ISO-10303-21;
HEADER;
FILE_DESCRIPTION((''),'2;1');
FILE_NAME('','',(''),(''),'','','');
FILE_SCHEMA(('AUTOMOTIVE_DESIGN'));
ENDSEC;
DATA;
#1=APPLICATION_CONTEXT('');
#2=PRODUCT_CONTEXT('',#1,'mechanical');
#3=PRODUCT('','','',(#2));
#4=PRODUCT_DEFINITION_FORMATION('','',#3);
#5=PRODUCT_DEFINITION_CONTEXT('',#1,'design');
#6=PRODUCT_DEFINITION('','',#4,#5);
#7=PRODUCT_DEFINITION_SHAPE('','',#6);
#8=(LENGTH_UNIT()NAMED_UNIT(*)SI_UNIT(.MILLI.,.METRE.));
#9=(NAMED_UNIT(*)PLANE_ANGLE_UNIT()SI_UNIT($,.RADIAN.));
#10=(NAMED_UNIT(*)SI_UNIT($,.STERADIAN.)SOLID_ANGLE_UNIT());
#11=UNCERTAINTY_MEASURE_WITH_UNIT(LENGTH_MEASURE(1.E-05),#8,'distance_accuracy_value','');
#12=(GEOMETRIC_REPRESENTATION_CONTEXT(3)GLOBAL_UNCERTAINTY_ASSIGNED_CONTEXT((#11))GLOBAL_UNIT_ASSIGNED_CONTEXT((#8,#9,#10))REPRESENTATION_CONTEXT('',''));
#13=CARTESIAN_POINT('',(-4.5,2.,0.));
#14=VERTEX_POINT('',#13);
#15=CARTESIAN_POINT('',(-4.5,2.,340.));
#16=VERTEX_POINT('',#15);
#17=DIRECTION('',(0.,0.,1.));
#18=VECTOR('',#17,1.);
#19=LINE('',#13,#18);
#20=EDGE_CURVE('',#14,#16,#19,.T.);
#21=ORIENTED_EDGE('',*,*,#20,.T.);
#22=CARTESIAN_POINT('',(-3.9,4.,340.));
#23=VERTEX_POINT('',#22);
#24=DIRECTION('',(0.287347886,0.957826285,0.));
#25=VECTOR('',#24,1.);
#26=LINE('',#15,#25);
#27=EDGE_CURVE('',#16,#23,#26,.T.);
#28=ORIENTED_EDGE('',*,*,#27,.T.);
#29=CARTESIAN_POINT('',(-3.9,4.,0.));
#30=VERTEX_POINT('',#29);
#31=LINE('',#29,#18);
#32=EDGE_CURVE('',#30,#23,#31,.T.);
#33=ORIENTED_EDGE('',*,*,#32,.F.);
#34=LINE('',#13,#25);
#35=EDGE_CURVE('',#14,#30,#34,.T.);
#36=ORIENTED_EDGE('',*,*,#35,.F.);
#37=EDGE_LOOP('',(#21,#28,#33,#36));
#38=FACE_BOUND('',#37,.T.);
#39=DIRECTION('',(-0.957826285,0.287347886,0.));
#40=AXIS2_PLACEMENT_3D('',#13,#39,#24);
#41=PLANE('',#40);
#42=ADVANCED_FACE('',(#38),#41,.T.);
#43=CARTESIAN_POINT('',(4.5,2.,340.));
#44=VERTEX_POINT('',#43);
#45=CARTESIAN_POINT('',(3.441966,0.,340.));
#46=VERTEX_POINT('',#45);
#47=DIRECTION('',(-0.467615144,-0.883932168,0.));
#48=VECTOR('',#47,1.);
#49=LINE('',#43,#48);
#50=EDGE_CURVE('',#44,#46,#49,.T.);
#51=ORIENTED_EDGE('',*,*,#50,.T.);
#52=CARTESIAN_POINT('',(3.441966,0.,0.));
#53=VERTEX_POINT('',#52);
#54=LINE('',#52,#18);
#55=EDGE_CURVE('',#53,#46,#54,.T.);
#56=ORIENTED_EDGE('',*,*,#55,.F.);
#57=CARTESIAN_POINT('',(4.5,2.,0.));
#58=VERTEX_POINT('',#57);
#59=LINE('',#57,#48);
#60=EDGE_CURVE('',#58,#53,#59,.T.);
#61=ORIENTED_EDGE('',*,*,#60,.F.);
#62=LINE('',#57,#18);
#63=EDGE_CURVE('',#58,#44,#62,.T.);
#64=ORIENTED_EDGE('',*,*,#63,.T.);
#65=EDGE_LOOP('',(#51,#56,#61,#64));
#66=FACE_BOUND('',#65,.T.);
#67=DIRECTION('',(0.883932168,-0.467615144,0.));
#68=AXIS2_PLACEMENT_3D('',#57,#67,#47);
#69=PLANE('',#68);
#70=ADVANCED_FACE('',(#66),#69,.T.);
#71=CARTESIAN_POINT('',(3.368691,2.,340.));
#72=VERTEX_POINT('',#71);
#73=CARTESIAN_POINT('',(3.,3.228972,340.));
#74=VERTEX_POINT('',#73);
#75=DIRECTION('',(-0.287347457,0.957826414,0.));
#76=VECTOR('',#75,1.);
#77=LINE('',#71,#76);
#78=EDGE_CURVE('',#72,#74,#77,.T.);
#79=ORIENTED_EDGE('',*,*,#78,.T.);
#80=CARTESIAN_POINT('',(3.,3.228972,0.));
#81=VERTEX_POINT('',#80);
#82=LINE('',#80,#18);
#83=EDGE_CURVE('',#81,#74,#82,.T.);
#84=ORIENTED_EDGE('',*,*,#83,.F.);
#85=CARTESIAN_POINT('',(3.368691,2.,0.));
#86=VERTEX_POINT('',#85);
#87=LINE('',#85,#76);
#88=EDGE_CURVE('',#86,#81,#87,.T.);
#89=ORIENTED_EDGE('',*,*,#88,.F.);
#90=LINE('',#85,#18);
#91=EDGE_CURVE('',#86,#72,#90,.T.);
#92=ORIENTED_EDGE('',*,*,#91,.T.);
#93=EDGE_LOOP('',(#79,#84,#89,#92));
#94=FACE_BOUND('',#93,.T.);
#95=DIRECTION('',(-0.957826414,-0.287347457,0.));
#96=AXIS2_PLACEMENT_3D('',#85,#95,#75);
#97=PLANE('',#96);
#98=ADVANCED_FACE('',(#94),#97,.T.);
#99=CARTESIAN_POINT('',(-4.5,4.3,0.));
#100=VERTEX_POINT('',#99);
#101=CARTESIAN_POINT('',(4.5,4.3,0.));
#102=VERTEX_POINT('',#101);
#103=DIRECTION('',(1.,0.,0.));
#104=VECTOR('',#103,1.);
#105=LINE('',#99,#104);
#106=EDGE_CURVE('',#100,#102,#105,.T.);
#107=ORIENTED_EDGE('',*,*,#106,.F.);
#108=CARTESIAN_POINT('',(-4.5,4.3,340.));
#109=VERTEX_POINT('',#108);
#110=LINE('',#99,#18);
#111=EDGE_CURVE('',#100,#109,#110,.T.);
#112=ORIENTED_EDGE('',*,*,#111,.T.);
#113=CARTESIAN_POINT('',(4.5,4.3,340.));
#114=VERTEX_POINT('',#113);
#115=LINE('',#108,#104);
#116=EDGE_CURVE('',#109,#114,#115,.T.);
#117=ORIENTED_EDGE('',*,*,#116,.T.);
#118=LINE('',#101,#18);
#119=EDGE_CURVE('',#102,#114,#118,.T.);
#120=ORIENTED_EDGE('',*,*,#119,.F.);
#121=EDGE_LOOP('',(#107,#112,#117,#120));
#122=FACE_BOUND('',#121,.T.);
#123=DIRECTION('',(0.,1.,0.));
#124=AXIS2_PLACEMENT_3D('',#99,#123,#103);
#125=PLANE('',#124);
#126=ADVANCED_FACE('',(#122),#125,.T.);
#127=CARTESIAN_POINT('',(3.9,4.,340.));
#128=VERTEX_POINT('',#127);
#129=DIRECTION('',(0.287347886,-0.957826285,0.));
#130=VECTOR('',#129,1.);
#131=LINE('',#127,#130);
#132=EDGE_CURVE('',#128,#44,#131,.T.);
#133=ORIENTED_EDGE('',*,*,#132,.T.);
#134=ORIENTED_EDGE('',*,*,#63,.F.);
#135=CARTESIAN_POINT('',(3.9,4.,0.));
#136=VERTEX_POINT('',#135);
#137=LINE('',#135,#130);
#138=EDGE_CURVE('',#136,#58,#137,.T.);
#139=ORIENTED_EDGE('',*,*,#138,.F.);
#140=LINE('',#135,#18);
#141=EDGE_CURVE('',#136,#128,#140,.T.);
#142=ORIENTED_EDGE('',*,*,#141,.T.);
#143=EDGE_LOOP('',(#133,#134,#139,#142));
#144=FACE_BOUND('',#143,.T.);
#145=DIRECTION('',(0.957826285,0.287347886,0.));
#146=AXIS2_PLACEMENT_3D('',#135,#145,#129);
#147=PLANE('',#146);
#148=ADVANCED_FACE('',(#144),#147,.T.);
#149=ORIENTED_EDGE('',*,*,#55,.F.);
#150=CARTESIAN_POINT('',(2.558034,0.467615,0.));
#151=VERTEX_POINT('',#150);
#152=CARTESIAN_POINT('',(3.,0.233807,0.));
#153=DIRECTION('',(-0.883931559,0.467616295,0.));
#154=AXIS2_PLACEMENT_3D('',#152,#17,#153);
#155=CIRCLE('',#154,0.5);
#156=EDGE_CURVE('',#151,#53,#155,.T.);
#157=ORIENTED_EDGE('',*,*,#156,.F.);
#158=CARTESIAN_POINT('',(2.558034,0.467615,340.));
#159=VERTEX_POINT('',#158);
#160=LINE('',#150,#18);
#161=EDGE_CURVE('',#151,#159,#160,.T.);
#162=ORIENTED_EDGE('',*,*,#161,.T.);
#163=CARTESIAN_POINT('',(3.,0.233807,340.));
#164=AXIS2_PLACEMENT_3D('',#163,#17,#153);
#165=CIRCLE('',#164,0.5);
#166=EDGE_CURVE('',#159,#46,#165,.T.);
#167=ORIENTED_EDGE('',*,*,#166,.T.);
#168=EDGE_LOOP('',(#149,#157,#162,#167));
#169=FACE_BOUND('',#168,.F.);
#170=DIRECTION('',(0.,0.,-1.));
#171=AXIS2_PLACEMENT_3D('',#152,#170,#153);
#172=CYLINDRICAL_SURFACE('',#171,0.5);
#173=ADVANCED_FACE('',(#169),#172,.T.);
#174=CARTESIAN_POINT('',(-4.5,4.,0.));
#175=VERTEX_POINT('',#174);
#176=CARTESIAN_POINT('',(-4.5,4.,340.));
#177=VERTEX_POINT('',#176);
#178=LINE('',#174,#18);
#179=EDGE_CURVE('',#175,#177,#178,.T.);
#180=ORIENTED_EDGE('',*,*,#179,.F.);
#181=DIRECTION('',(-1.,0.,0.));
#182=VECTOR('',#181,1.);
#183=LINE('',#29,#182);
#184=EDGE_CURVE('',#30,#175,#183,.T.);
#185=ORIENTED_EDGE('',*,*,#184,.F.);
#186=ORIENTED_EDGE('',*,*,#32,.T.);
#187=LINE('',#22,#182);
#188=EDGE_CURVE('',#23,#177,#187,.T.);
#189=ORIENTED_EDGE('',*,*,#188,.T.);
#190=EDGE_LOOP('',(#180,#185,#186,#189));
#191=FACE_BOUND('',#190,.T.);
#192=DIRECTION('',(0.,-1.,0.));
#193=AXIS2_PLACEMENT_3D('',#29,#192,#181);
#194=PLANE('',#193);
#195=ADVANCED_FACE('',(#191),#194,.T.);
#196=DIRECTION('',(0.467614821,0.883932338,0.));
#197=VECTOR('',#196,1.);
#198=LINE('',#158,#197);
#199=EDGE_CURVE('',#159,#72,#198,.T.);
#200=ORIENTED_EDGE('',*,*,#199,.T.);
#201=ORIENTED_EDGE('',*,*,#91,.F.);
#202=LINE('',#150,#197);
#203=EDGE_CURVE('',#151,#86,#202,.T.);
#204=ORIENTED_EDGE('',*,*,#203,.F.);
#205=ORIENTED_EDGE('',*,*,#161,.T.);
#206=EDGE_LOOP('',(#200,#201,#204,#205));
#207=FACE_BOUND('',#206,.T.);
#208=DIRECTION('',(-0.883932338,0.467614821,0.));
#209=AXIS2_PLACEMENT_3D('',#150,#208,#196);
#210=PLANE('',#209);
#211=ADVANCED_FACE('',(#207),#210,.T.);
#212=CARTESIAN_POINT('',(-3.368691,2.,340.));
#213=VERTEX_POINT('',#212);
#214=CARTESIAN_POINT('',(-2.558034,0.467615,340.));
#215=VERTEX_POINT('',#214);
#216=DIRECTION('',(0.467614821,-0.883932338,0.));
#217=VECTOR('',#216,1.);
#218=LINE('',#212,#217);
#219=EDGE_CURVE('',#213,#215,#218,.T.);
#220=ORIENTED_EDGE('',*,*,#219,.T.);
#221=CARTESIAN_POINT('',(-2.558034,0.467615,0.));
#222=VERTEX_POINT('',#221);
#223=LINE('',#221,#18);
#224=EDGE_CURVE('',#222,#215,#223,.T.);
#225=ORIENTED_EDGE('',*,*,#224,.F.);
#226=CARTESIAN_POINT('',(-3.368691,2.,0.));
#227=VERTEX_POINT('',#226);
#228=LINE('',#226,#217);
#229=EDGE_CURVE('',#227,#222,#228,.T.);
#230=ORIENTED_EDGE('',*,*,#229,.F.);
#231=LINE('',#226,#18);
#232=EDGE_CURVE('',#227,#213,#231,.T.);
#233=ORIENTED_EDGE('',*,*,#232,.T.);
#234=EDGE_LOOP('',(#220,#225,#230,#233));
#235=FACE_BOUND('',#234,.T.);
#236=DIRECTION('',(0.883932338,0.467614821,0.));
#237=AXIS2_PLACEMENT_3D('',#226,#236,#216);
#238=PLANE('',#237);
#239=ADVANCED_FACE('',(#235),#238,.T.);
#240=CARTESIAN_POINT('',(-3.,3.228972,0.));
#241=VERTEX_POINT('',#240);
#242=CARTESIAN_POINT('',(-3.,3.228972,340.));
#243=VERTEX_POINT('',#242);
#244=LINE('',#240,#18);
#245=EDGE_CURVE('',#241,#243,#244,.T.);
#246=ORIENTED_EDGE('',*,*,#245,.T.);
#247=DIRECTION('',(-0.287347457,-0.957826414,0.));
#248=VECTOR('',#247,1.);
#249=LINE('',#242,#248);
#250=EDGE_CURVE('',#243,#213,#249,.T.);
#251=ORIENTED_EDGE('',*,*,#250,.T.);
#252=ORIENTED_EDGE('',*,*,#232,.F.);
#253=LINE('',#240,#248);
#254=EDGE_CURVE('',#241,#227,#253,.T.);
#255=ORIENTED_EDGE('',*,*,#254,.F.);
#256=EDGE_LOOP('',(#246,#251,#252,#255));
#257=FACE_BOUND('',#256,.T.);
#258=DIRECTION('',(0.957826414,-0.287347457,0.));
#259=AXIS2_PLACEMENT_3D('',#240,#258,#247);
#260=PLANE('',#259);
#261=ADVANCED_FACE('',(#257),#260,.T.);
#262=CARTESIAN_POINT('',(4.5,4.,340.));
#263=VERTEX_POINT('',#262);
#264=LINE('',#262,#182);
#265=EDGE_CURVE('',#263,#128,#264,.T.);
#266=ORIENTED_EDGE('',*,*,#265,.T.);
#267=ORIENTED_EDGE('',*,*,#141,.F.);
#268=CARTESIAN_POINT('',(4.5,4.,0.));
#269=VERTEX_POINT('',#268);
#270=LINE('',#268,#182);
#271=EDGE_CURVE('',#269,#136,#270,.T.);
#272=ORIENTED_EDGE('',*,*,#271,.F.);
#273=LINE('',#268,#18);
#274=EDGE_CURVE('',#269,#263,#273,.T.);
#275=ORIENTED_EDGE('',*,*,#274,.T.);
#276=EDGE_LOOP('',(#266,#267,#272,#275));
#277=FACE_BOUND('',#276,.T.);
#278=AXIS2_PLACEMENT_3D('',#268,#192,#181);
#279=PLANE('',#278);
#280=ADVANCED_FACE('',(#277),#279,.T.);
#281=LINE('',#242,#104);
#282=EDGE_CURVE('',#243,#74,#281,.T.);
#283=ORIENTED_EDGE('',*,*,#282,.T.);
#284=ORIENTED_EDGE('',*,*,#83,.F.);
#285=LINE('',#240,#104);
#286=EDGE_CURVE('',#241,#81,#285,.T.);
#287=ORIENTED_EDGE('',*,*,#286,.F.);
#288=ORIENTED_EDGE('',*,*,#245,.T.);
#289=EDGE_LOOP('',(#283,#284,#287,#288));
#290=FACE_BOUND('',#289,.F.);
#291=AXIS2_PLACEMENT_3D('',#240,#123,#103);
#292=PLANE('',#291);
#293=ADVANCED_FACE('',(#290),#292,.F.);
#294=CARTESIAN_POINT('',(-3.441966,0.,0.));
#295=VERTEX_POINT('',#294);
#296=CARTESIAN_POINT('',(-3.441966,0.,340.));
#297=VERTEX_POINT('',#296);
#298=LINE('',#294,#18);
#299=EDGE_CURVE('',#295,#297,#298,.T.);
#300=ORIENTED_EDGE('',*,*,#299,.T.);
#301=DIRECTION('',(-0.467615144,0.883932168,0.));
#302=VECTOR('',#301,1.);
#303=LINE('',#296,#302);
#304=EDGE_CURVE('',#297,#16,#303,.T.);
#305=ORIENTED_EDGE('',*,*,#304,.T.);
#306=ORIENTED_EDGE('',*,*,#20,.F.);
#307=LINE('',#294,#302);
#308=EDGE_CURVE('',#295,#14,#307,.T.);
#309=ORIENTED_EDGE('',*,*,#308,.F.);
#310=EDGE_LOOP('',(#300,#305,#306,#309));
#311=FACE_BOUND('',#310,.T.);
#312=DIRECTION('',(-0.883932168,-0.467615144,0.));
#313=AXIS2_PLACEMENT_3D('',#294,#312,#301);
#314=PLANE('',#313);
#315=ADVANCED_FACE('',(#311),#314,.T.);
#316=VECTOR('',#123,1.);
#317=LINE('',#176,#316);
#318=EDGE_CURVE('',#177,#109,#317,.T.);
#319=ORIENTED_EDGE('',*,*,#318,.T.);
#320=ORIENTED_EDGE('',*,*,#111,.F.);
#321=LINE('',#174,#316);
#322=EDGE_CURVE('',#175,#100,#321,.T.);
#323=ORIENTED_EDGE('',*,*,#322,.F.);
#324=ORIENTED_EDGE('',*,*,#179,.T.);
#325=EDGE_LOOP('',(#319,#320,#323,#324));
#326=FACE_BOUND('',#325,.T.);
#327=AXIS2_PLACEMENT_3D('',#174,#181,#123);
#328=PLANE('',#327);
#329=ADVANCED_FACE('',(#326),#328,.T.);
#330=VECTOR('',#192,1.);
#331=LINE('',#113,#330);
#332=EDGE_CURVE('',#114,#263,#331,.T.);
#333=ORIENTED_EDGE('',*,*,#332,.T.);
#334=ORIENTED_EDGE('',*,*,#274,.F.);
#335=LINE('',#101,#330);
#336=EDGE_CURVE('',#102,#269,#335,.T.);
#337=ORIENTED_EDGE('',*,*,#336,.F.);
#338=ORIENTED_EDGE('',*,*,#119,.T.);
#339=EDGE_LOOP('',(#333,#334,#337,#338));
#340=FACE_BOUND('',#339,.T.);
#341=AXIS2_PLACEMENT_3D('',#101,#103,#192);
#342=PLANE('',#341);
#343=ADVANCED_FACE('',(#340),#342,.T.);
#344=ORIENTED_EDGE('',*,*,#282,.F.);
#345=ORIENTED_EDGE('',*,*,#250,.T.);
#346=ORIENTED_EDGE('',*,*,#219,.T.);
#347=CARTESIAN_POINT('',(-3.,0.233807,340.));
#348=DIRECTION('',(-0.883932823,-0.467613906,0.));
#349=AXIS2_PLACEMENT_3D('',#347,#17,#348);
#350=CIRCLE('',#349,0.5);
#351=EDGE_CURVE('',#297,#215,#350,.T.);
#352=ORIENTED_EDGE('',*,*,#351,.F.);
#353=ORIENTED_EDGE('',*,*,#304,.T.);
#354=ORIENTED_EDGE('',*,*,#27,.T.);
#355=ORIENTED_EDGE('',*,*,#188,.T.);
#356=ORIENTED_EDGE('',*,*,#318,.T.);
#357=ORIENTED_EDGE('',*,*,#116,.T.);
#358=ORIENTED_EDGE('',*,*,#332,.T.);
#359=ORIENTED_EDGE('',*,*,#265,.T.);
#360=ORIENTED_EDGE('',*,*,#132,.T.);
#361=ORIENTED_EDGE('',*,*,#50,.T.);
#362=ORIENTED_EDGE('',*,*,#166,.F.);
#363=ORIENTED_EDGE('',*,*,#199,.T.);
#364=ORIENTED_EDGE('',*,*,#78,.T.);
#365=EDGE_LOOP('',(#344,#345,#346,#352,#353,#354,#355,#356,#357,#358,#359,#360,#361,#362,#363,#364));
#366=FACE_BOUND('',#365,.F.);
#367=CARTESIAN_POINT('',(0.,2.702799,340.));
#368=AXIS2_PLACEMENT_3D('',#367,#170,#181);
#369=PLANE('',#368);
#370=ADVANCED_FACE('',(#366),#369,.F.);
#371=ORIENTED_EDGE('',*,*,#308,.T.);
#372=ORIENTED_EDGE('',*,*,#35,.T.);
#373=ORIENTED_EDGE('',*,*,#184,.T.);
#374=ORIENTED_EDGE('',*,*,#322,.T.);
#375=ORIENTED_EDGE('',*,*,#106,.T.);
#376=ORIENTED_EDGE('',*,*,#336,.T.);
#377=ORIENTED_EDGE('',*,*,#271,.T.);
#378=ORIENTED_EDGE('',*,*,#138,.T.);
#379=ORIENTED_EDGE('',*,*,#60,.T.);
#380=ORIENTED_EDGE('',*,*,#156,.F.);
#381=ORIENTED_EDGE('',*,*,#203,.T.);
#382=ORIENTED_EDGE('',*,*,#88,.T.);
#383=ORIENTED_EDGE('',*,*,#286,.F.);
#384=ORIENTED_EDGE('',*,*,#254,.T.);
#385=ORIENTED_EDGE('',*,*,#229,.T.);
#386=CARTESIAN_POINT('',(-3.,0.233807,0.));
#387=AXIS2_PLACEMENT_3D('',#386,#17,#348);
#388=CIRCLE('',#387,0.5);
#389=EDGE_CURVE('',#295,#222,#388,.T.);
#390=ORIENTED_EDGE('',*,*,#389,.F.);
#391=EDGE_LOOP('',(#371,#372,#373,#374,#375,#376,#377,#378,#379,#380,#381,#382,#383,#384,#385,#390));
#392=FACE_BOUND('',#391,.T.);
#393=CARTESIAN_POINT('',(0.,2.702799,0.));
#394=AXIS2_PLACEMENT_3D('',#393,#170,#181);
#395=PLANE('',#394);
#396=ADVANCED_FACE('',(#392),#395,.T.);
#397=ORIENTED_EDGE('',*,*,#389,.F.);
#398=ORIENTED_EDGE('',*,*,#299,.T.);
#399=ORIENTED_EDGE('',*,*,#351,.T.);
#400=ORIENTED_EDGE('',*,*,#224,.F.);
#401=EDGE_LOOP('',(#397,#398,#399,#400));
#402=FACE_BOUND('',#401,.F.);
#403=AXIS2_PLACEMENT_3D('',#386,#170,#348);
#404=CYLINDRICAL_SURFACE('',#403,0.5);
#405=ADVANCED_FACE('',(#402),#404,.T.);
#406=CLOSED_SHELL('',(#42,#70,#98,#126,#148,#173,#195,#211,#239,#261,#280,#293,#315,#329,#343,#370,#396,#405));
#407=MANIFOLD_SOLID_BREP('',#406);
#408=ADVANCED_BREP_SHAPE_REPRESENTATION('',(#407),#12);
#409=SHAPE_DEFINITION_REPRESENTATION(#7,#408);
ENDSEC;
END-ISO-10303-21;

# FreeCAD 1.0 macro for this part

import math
import FreeCAD as App
import Part
import Sketcher
from FreeCAD import Vector

doc = App.newDocument("Part")
body = doc.addObject("PartDesign::Body", "Body")

# Sketch on XY plane
sketch1 = body.newObject("Sketcher::SketchObject", "Sketch")
sketch1.AttachmentSupport = (doc.getObject("XY_Plane"), [""])
sketch1.MapMode = "FlatFace"
sketch1.addGeometry([
    Part.LineSegment(Vector(4.5, 4.3, 0), Vector(-4.5, 4.3, 0)),  # 0
    Part.LineSegment(Vector(-4.5, 4.3, 0), Vector(-4.5, 4, 0)),  # 1
    Part.LineSegment(Vector(-4.5, 4, 0), Vector(-3.9, 4, 0)),  # 2
    Part.LineSegment(Vector(-3.9, 4, 0), Vector(-4.5, 2, 0)),  # 3
    Part.LineSegment(Vector(-4.5, 2, 0), Vector(-3.44, 0, 0)),  # 4
    Part.ArcOfCircle(Part.Circle(Vector(-3, 0.23, 0), Vector(0, 0, 1), 0.5), math.radians(-152), math.radians(28)),  # 5
    Part.LineSegment(Vector(-2.56, 0.47, 0), Vector(-3.37, 2, 0)),  # 6
    Part.LineSegment(Vector(-3.37, 2, 0), Vector(-3, 3.23, 0)),  # 7
    Part.LineSegment(Vector(-3, 3.23, 0), Vector(3, 3.23, 0)),  # 8
    Part.LineSegment(Vector(3, 3.23, 0), Vector(3.37, 2, 0)),  # 9
    Part.LineSegment(Vector(3.37, 2, 0), Vector(2.56, 0.47, 0)),  # 10
    Part.ArcOfCircle(Part.Circle(Vector(3, 0.23, 0), Vector(0, 0, 1), 0.5), math.radians(152), math.radians(332)),  # 11
    Part.LineSegment(Vector(3.44, 0, 0), Vector(4.5, 2, 0)),  # 12
    Part.LineSegment(Vector(4.5, 2, 0), Vector(3.9, 4, 0)),  # 13
    Part.LineSegment(Vector(3.9, 4, 0), Vector(4.5, 4, 0)),  # 14
    Part.LineSegment(Vector(4.5, 4, 0), Vector(4.5, 4.3, 0)),  # 15
], False)
sketch1.addConstraint([
    Sketcher.Constraint("Coincident", 0, 2, 1, 1),
    Sketcher.Constraint("Coincident", 1, 2, 2, 1),
    Sketcher.Constraint("Coincident", 2, 2, 3, 1),
    Sketcher.Constraint("Coincident", 3, 2, 4, 1),
    Sketcher.Constraint("Tangent", 4, 2, 5, 1),
    Sketcher.Constraint("Tangent", 5, 2, 6, 1),
    Sketcher.Constraint("Coincident", 6, 2, 7, 1),
    Sketcher.Constraint("Coincident", 7, 2, 8, 1),
    Sketcher.Constraint("Coincident", 8, 2, 9, 1),
    Sketcher.Constraint("Coincident", 9, 2, 10, 1),
    Sketcher.Constraint("Tangent", 10, 2, 11, 1),
    Sketcher.Constraint("Tangent", 11, 2, 12, 1),
    Sketcher.Constraint("Coincident", 12, 2, 13, 1),
    Sketcher.Constraint("Coincident", 13, 2, 14, 1),
    Sketcher.Constraint("Coincident", 14, 2, 15, 1),
    Sketcher.Constraint("Coincident", 15, 2, 0, 1),
    Sketcher.Constraint("Horizontal", 0),
    Sketcher.Constraint("Vertical", 1),
    Sketcher.Constraint("Horizontal", 2),
    Sketcher.Constraint("Horizontal", 8),
    Sketcher.Constraint("Horizontal", 14),
    Sketcher.Constraint("Vertical", 15),
    Sketcher.Constraint("Equal", 5, 11),
    Sketcher.Constraint("Symmetric", 4, 2, 11, 2, -1, 1),
    Sketcher.Constraint("Symmetric", 5, 3, 11, 3, -2),
    Sketcher.Constraint("Symmetric", 6, 2, 9, 2, -2),
    Sketcher.Constraint("Symmetric", 2, 2, 13, 2, -2),
    Sketcher.Constraint("Parallel", 4, 6),
    Sketcher.Constraint("Parallel", 3, 7),
    Sketcher.Constraint("Parallel", 9, 13),
    Sketcher.Constraint("Horizontal", 3, 2, 6, 2),
    Sketcher.Constraint("Horizontal", 9, 2, 12, 2),
    Sketcher.Constraint("Vertical", 1, 2, 3, 2),
    Sketcher.Constraint("Vertical", 5, 3, 7, 2),
    Sketcher.Constraint("Vertical", 12, 2, 14, 2),
    Sketcher.Constraint("Radius", 5, 0.5),
    Sketcher.Constraint("DistanceX", 0, 2, 0, 1, 9.0),
    Sketcher.Constraint("DistanceX", 8, 1, 8, 2, 6.0),
    Sketcher.Constraint("DistanceX", 2, 1, 2, 2, 0.6),
    Sketcher.Constraint("DistanceY", 1, 2, 1, 1, 0.3),
    Sketcher.Constraint("DistanceY", -1, 1, 1, 2, 4.0),
    Sketcher.Constraint("DistanceY", -1, 1, 3, 2, 2.0),
])
pad1 = body.newObject("PartDesign::Pad", "Pad")
pad1.Profile = sketch1
pad1.Length = 340

doc.recompute()
